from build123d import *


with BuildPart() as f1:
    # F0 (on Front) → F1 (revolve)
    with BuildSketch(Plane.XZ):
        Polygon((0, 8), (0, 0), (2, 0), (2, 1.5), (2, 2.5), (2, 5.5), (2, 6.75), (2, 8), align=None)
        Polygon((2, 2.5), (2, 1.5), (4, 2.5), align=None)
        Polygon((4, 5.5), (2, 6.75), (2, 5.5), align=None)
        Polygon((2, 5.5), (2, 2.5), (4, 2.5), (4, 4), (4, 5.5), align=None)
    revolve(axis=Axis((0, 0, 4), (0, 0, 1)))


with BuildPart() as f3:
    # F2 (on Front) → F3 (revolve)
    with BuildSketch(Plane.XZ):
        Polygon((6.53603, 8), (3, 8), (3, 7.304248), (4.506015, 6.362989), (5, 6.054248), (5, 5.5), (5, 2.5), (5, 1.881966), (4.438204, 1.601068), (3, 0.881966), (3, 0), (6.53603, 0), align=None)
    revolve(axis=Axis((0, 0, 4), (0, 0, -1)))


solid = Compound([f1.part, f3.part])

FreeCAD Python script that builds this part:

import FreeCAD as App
import Part
import Sketcher
from FreeCAD import Vector
Q = App.Units.Quantity

doc = App.newDocument("Part")
body = doc.addObject("PartDesign::Body", "Body")

# Sketch on XZ plane
sketch1 = doc.addObject("Sketcher::SketchObject", "Sketch")
body.addObject(sketch1)
sketch1.AttachmentSupport = (doc.XZ_Plane, [""])
sketch1.MapMode = "FlatFace"
sketch1.addGeometry(Part.LineSegment(Vector(0, 8, 0), Vector(0, 0, 0)), False)
sketch1.addGeometry(Part.LineSegment(Vector(0, 0, 0), Vector(2, 0, 0)), False)
sketch1.addGeometry(Part.LineSegment(Vector(2, 0, 0), Vector(2, 1.5, 0)), False)
sketch1.addGeometry(Part.LineSegment(Vector(2, 1.5, 0), Vector(4, 2.5, 0)), False)
sketch1.addGeometry(Part.LineSegment(Vector(4, 2.5, 0), Vector(4, 5.5, 0)), False)
sketch1.addGeometry(Part.LineSegment(Vector(4, 5.5, 0), Vector(2, 6.8, 0)), False)
sketch1.addGeometry(Part.LineSegment(Vector(2, 6.8, 0), Vector(2, 8, 0)), False)
sketch1.addGeometry(Part.LineSegment(Vector(2, 8, 0), Vector(0, 8, 0)), False)
sketch1.addConstraint(Sketcher.Constraint("Coincident", 0, 2, 1, 1))
sketch1.addConstraint(Sketcher.Constraint("Coincident", 1, 2, 2, 1))
sketch1.addConstraint(Sketcher.Constraint("Coincident", 2, 2, 3, 1))
sketch1.addConstraint(Sketcher.Constraint("Coincident", 3, 2, 4, 1))
sketch1.addConstraint(Sketcher.Constraint("Coincident", 4, 2, 5, 1))
sketch1.addConstraint(Sketcher.Constraint("Coincident", 5, 2, 6, 1))
sketch1.addConstraint(Sketcher.Constraint("Coincident", 6, 2, 7, 1))
sketch1.addConstraint(Sketcher.Constraint("Coincident", 7, 2, 0, 1))
sketch1.addConstraint(Sketcher.Constraint("Vertical", 0))
sketch1.addConstraint(Sketcher.Constraint("Horizontal", 1))
sketch1.addConstraint(Sketcher.Constraint("Vertical", 2))
sketch1.addConstraint(Sketcher.Constraint("Vertical", 4))
sketch1.addConstraint(Sketcher.Constraint("Vertical", 6))
sketch1.addConstraint(Sketcher.Constraint("Horizontal", 7))
sketch1.addConstraint(Sketcher.Constraint("Coincident", 0, 2, -1, 1))
sketch1.addConstraint(Sketcher.Constraint("Vertical", 2, 2, 5, 2))
sketch1.addConstraint(Sketcher.Constraint("DistanceX", 1, 1, 1, 2, Q("2 mm")))
sketch1.addConstraint(Sketcher.Constraint("DistanceY", 0, 2, 0, 1, Q("8 mm")))
sketch1.addConstraint(Sketcher.Constraint("DistanceY", 4, 1, 4, 2, Q("3 mm")))
sketch1.addConstraint(Sketcher.Constraint("DistanceY", 2, 1, 2, 2, Q("1.5 mm")))
sketch1.addConstraint(Sketcher.Constraint("DistanceX", -1, 1, 3, 2, Q("4 mm")))
sketch1.addConstraint(Sketcher.Constraint("DistanceY", 2, 2, 3, 2, Q("1 mm")))
sketch1.addConstraint(Sketcher.Constraint("DistanceY", 6, 1, 6, 2, Q("1.25 mm")))
revolution = doc.addObject("PartDesign::Revolution", "Revolution")
body.addObject(revolution)
revolution.Profile = sketch1
revolution.ReferenceAxis = (sketch1, ["V_Axis"])
revolution.Angle = 360
body2 = doc.addObject("PartDesign::Body", "Body001")

# Sketch on XZ plane
sketch2 = doc.addObject("Sketcher::SketchObject", "Sketch001")
body2.addObject(sketch2)
sketch2.AttachmentSupport = (doc.getObject("XZ_Plane001"), [""])
sketch2.MapMode = "FlatFace"
sketch2.addGeometry(Part.LineSegment(Vector(6.5, 8, 0), Vector(3, 8, 0)), False)
sketch2.addGeometry(Part.LineSegment(Vector(3, 8, 0), Vector(3, 7.3, 0)), False)
sketch2.addGeometry(Part.LineSegment(Vector(3, 7.3, 0), Vector(4.5, 6.4, 0)), False)
sketch2.addGeometry(Part.LineSegment(Vector(4.5, 6.4, 0), Vector(5, 6.1, 0)), False)
sketch2.addGeometry(Part.LineSegment(Vector(5, 6.1, 0), Vector(5, 1.9, 0)), False)
sketch2.addGeometry(Part.LineSegment(Vector(5, 1.9, 0), Vector(3, 0.9, 0)), False)
sketch2.addGeometry(Part.LineSegment(Vector(3, 0.9, 0), Vector(3, 0, 0)), False)
sketch2.addGeometry(Part.LineSegment(Vector(3, 0, 0), Vector(6.5, 0, 0)), False)
sketch2.addGeometry(Part.LineSegment(Vector(6.5, 0, 0), Vector(6.5, 8, 0)), False)
sketch2.addConstraint(Sketcher.Constraint("Coincident", 0, 2, 1, 1))
sketch2.addConstraint(Sketcher.Constraint("Coincident", 1, 2, 2, 1))
sketch2.addConstraint(Sketcher.Constraint("Coincident", 2, 2, 3, 1))
sketch2.addConstraint(Sketcher.Constraint("Coincident", 3, 2, 4, 1))
sketch2.addConstraint(Sketcher.Constraint("Coincident", 4, 2, 5, 1))
sketch2.addConstraint(Sketcher.Constraint("Coincident", 5, 2, 6, 1))
sketch2.addConstraint(Sketcher.Constraint("Coincident", 6, 2, 7, 1))
sketch2.addConstraint(Sketcher.Constraint("Coincident", 7, 2, 8, 1))
sketch2.addConstraint(Sketcher.Constraint("Coincident", 8, 2, 0, 1))
sketch2.addConstraint(Sketcher.Constraint("Horizontal", 0))
sketch2.addConstraint(Sketcher.Constraint("Vertical", 1))
sketch2.addConstraint(Sketcher.Constraint("Vertical", 4))
sketch2.addConstraint(Sketcher.Constraint("Vertical", 6))
sketch2.addConstraint(Sketcher.Constraint("Horizontal", 7))
sketch2.addConstraint(Sketcher.Constraint("Vertical", 8))
sketch2.addConstraint(Sketcher.Constraint("PointOnObject", 6, 2, -1))
sketch2.addConstraint(Sketcher.Constraint("Parallel", 2, 3))
sketch2.addConstraint(Sketcher.Constraint("Vertical", 1, 2, 5, 2))
sketch2.addConstraint(Sketcher.Constraint("DistanceY", 8, 1, 8, 2, Q("8 mm")))
sketch2.addConstraint(Sketcher.Constraint("DistanceX", -1, 1, 0, 2, Q("3 mm")))
sketch2.addConstraint(Sketcher.Constraint("DistanceX", -1, 1, 3, 2, Q("5 mm")))
sketch2.addConstraint(Sketcher.Constraint("DistanceY", 5, 2, 4, 2, Q("1 mm")))
sketch2.addConstraint(Sketcher.Constraint("DistanceY", 3, 2, 1, 2, Q("1.25 mm")))
sketch2.addConstraint(Sketcher.Constraint("DistanceX", 0, 2, 0, 1, Q("3.53603 mm")))
sketch2.addConstraint(Sketcher.Constraint("DistanceY", 1, 2, 1, 1, Q("0.695752 mm")))
sketch2.addConstraint(Sketcher.Constraint("Distance", 3, Q("0.582531 mm")))
sketch2.addConstraint(Sketcher.Constraint("DistanceY", 4, 2, 4, 1, Q("4.172282 mm")))
revolution2 = doc.addObject("PartDesign::Revolution", "Revolution001")
body2.addObject(revolution2)
revolution2.Profile = sketch2
revolution2.ReferenceAxis = (sketch2, ["V_Axis"])
revolution2.Angle = 360

doc.recompute()
